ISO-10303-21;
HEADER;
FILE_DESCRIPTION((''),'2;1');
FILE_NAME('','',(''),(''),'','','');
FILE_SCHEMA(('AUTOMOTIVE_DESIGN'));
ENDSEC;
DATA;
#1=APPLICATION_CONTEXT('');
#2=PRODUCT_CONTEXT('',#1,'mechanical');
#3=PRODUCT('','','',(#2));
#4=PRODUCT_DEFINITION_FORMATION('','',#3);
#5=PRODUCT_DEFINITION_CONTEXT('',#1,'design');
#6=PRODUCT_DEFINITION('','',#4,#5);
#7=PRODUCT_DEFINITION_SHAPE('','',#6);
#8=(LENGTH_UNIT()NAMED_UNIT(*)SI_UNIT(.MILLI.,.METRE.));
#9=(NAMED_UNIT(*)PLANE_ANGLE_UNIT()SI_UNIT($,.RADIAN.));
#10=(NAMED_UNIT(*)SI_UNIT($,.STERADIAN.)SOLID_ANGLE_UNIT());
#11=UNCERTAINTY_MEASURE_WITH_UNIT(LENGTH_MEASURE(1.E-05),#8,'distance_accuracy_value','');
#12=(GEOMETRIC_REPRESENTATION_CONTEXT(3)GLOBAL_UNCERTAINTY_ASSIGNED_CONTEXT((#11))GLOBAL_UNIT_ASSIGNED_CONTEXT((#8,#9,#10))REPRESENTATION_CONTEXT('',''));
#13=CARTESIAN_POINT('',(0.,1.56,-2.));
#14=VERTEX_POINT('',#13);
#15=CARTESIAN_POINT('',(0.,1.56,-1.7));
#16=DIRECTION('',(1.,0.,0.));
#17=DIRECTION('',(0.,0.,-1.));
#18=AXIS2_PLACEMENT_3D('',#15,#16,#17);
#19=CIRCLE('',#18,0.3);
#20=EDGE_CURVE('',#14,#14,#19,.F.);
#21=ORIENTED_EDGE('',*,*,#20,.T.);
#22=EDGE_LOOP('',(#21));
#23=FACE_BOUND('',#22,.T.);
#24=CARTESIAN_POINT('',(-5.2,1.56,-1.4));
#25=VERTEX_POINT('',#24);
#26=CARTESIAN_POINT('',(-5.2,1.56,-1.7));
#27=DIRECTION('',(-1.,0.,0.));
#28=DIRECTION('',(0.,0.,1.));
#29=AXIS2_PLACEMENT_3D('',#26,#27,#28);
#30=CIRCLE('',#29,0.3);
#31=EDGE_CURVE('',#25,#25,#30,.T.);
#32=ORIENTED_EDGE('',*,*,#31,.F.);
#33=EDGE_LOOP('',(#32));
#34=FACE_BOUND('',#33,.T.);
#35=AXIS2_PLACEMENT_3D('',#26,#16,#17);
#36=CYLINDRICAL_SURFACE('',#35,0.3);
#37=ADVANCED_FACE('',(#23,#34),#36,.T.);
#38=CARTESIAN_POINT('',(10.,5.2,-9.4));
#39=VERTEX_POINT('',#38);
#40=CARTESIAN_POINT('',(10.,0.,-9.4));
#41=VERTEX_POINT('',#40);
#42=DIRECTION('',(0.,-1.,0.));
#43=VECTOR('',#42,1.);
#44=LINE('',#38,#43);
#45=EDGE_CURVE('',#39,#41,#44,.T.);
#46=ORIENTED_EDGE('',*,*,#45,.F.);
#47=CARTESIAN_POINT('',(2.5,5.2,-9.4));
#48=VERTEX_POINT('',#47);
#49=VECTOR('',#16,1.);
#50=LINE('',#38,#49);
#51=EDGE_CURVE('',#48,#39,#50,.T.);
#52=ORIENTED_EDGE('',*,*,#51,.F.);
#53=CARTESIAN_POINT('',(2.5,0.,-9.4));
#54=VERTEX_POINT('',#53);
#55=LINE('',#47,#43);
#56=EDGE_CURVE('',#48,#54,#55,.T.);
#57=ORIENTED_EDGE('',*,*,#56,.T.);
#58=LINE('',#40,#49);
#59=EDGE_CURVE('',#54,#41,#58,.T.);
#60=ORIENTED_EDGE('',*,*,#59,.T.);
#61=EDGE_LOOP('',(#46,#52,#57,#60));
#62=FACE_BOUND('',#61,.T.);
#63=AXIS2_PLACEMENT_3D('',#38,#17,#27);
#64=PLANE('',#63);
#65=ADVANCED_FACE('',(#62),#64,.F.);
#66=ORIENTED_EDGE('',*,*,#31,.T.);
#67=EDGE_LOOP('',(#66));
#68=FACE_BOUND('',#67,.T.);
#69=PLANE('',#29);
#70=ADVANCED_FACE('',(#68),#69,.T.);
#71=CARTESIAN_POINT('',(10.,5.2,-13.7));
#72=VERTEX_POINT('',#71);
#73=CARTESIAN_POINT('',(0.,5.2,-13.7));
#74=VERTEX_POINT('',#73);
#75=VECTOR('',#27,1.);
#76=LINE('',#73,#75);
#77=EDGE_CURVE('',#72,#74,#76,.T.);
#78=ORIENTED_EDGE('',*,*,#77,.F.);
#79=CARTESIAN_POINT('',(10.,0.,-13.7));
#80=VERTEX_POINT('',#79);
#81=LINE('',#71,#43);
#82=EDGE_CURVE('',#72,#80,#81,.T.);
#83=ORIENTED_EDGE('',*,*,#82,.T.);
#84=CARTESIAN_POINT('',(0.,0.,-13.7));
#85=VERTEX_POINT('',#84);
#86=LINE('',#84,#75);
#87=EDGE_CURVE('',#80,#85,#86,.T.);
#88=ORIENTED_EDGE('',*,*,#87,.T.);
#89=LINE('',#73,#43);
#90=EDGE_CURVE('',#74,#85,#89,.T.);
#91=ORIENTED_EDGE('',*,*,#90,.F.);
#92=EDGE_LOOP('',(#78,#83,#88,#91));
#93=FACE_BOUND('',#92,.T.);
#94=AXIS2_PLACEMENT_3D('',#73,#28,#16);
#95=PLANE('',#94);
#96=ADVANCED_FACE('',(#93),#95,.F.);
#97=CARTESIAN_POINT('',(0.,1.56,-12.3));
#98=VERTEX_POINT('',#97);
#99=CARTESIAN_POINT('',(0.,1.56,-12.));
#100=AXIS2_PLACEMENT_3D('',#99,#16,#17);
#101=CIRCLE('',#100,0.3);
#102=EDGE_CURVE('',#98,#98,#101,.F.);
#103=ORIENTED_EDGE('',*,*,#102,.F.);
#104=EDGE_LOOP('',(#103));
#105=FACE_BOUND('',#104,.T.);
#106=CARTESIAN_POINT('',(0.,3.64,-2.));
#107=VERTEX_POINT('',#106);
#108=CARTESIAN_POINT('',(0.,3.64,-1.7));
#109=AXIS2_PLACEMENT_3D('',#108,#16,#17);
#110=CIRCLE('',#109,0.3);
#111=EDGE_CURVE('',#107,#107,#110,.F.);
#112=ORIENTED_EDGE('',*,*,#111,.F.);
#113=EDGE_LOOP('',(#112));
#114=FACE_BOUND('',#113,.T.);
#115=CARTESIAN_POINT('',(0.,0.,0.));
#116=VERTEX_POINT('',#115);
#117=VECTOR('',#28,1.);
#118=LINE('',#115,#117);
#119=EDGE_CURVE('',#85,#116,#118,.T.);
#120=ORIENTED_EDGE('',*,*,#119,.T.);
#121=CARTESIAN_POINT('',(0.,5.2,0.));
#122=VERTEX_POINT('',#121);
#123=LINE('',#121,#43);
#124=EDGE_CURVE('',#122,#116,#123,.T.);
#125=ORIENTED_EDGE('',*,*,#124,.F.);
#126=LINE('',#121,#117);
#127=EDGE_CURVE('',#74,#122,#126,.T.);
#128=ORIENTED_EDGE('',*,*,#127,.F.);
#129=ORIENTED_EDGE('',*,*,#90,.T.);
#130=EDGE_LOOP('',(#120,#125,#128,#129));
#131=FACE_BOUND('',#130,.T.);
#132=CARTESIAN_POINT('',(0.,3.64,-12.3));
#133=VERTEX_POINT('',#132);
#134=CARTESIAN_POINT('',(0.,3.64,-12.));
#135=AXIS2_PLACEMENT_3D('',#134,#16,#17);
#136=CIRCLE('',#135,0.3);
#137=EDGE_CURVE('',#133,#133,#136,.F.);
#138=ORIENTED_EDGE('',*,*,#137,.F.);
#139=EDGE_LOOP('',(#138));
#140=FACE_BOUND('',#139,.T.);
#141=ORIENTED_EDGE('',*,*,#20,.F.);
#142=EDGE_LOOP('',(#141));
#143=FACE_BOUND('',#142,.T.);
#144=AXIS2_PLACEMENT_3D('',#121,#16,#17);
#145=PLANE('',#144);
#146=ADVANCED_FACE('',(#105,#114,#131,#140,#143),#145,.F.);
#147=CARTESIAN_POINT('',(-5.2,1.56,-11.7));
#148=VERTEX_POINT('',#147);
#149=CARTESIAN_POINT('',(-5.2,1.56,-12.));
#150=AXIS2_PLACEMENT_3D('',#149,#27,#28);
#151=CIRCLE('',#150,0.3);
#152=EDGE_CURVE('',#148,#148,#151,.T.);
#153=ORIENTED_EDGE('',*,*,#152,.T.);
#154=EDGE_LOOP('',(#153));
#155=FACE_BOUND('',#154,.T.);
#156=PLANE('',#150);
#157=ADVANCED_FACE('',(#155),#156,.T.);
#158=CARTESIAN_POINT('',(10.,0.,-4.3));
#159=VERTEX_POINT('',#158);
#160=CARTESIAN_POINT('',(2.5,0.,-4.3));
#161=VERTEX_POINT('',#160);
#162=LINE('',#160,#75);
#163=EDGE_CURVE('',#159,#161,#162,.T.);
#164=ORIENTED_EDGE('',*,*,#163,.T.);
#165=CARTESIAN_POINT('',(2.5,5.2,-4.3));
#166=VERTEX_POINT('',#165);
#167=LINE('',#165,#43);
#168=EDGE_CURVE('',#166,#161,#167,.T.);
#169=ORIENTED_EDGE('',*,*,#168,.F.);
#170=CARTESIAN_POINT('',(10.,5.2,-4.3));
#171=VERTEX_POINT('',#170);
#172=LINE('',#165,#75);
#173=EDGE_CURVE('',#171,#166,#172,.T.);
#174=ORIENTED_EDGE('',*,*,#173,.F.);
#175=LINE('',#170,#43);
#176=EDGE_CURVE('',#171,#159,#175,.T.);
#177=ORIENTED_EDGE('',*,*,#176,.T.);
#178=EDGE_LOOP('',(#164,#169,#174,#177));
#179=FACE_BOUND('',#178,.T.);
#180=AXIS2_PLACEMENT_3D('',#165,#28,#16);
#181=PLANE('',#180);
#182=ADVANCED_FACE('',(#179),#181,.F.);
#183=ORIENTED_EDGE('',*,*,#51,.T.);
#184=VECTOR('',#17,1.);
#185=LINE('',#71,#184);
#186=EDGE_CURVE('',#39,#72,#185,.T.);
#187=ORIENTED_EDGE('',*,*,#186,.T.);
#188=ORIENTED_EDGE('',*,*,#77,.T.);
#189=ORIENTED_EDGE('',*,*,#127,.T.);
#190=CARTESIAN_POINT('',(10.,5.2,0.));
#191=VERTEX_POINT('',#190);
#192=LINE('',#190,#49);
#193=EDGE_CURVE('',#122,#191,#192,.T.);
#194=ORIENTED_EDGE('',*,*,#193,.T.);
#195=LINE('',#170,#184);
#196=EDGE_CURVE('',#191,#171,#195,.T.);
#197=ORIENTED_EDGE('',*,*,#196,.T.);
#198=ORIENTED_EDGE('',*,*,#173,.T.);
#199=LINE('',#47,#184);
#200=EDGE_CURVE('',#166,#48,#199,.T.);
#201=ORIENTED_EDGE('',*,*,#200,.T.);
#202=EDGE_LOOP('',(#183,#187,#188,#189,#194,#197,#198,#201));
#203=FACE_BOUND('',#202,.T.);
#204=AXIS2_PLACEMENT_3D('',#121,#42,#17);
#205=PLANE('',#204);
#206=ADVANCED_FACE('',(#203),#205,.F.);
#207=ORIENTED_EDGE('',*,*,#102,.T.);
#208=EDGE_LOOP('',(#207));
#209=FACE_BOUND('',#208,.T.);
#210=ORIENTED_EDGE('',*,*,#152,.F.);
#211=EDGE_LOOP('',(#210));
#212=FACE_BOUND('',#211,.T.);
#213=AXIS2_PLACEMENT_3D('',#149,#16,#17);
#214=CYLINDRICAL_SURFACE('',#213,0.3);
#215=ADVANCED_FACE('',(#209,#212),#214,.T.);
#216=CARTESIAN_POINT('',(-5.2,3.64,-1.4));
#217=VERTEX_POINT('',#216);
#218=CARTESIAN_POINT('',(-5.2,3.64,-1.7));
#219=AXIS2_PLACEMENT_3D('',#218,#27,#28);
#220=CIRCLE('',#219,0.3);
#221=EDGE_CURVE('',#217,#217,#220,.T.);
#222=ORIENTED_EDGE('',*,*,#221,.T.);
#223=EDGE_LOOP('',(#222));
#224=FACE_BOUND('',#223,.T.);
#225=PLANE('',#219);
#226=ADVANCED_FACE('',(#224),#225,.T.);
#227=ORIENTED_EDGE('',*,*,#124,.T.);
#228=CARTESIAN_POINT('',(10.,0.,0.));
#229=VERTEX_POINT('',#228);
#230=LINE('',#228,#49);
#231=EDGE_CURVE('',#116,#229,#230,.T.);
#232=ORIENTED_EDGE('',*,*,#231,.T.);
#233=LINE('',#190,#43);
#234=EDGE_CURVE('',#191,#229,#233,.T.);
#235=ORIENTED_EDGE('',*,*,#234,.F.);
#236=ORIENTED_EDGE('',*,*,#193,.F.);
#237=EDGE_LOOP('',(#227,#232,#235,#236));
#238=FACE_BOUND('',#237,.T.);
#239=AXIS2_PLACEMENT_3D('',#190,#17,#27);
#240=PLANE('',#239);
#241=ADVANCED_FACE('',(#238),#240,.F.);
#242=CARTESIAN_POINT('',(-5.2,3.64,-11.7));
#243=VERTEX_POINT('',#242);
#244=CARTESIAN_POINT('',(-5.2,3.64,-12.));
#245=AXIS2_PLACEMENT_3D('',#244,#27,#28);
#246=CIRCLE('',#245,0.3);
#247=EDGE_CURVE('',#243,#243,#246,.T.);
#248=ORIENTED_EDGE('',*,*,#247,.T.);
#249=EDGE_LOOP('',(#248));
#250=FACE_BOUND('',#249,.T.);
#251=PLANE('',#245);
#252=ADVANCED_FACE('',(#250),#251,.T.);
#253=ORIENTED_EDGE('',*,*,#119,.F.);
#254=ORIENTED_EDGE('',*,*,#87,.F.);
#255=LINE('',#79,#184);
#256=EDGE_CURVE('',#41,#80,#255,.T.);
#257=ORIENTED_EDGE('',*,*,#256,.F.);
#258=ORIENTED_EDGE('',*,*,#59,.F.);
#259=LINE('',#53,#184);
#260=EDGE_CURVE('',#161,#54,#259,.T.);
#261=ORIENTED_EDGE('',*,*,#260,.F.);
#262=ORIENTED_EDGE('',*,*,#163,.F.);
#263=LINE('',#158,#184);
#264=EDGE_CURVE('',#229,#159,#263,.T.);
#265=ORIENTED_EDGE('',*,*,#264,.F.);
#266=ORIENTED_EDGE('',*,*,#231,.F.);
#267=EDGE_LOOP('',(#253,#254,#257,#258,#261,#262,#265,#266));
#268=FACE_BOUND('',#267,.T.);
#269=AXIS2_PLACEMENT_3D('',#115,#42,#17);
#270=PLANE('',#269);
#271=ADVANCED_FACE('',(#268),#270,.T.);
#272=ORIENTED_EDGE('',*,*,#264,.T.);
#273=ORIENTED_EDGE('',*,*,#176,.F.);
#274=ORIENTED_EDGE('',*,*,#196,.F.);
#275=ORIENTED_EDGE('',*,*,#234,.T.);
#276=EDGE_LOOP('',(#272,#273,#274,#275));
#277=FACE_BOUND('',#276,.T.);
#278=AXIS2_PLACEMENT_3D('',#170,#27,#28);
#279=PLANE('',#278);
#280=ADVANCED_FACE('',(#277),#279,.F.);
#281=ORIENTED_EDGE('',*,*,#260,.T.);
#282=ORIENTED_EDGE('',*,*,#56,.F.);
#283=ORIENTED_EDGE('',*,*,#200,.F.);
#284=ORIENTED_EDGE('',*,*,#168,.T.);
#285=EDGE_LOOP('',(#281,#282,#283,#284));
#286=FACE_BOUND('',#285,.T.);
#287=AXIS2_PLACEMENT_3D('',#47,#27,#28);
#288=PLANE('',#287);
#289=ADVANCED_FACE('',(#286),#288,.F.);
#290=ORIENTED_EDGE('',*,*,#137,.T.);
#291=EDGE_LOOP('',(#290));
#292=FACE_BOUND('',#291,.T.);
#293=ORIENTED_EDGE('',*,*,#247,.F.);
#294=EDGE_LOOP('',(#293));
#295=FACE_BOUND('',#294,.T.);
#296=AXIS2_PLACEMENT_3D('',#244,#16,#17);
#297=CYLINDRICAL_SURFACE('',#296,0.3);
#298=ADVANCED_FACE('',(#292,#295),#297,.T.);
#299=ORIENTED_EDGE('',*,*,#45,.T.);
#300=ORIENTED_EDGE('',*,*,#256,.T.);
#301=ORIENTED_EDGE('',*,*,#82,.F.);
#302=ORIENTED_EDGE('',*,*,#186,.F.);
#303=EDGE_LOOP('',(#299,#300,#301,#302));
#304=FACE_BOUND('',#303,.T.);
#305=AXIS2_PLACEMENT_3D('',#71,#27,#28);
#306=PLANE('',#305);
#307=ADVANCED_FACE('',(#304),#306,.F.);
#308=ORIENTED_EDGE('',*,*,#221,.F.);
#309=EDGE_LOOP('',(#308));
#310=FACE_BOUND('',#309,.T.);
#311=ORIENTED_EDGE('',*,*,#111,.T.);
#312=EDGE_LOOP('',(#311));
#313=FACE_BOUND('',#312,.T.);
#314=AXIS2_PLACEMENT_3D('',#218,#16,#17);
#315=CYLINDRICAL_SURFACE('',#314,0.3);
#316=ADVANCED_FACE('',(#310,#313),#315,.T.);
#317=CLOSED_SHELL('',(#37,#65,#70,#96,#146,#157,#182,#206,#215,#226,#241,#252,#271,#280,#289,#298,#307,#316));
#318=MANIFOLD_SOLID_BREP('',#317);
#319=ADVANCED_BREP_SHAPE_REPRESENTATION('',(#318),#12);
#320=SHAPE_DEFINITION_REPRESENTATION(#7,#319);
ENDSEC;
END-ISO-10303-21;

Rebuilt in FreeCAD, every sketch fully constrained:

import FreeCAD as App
import Part
import Sketcher
from FreeCAD import Vector
Q = App.Units.Quantity

doc = App.newDocument("Part")
body = doc.addObject("PartDesign::Body", "Body")

sketch1 = body.newObject("Sketcher::SketchObject", "Sketch")
sketch1.AttachmentSupport = (doc.getObject("XZ_Plane"), [""])
sketch1.MapMode = "FlatFace"
sketch1.addGeometry(Part.LineSegment(Vector(0, -13.7, 0), Vector(0, 0, 0)), False)
sketch1.addGeometry(Part.LineSegment(Vector(0, 0, 0), Vector(10, 0, 0)), False)
sketch1.addGeometry(Part.LineSegment(Vector(10, 0, 0), Vector(10, -4.3, 0)), False)
sketch1.addGeometry(Part.LineSegment(Vector(10, -4.3, 0), Vector(2.5, -4.3, 0)), False)
sketch1.addGeometry(Part.LineSegment(Vector(2.5, -4.3, 0), Vector(2.5, -9.4, 0)), False)
sketch1.addGeometry(Part.LineSegment(Vector(2.5, -9.4, 0), Vector(10, -9.4, 0)), False)
sketch1.addGeometry(Part.LineSegment(Vector(10, -9.4, 0), Vector(10, -13.7, 0)), False)
sketch1.addGeometry(Part.LineSegment(Vector(10, -13.7, 0), Vector(0, -13.7, 0)), False)
sketch1.addConstraint(Sketcher.Constraint("Coincident", 0, 2, 1, 1))
sketch1.addConstraint(Sketcher.Constraint("Coincident", 1, 2, 2, 1))
sketch1.addConstraint(Sketcher.Constraint("Coincident", 2, 2, 3, 1))
sketch1.addConstraint(Sketcher.Constraint("Coincident", 3, 2, 4, 1))
sketch1.addConstraint(Sketcher.Constraint("Coincident", 4, 2, 5, 1))
sketch1.addConstraint(Sketcher.Constraint("Coincident", 5, 2, 6, 1))
sketch1.addConstraint(Sketcher.Constraint("Coincident", 6, 2, 7, 1))
sketch1.addConstraint(Sketcher.Constraint("Coincident", 7, 2, 0, 1))
sketch1.addConstraint(Sketcher.Constraint("Vertical", 0))
sketch1.addConstraint(Sketcher.Constraint("Horizontal", 1))
sketch1.addConstraint(Sketcher.Constraint("Vertical", 2))
sketch1.addConstraint(Sketcher.Constraint("Horizontal", 3))
sketch1.addConstraint(Sketcher.Constraint("Vertical", 4))
sketch1.addConstraint(Sketcher.Constraint("Horizontal", 5))
sketch1.addConstraint(Sketcher.Constraint("Vertical", 6))
sketch1.addConstraint(Sketcher.Constraint("Horizontal", 7))
sketch1.addConstraint(Sketcher.Constraint("Coincident", 0, 2, -1, 1))
sketch1.addConstraint(Sketcher.Constraint("Vertical", 2, 2, 5, 2))
sketch1.addConstraint(Sketcher.Constraint("Equal", 2, 6))
sketch1.addConstraint(Sketcher.Constraint("DistanceX", 1, 1, 1, 2, Q("10 mm")))
sketch1.addConstraint(Sketcher.Constraint("DistanceX", 3, 2, 3, 1, Q("7.5 mm")))
sketch1.addConstraint(Sketcher.Constraint("DistanceY", 0, 1, 0, 2, Q("13.7 mm")))
sketch1.addConstraint(Sketcher.Constraint("DistanceY", 2, 2, 2, 1, Q("4.3 mm")))
pad1 = body.newObject("PartDesign::Pad", "Pad")
pad1.Profile = sketch1
pad1.Length = 5.2
pad1.Reversed = True

sketch2 = body.newObject("Sketcher::SketchObject", "Sketch001")
sketch2.AttachmentSupport = (doc.getObject("YZ_Plane"), [""])
sketch2.MapMode = "FlatFace"
sketch2.addGeometry(Part.Circle(Vector(3.64, -12, 0), Vector(0, 0, 1), 0.3), False)
sketch2.addGeometry(Part.Circle(Vector(3.64, -1.7, 0), Vector(0, 0, 1), 0.3), False)
sketch2.addGeometry(Part.Circle(Vector(1.56, -1.7, 0), Vector(0, 0, 1), 0.3), False)
sketch2.addGeometry(Part.Circle(Vector(1.56, -12, 0), Vector(0, 0, 1), 0.3), False)
sketch2.addConstraint(Sketcher.Constraint("Equal", 0, 1))
sketch2.addConstraint(Sketcher.Constraint("Equal", 1, 2))
sketch2.addConstraint(Sketcher.Constraint("Equal", 2, 3))
sketch2.addConstraint(Sketcher.Constraint("Horizontal", 1, 3, 2, 3))
sketch2.addConstraint(Sketcher.Constraint("Horizontal", 0, 3, 3, 3))
sketch2.addConstraint(Sketcher.Constraint("Vertical", 0, 3, 1, 3))
sketch2.addConstraint(Sketcher.Constraint("Vertical", 2, 3, 3, 3))
sketch2.addConstraint(Sketcher.Constraint("Diameter", 0, Q("0.6 mm")))
sketch2.addConstraint(Sketcher.Constraint("DistanceY", 0, 3, -1, 1, Q("12 mm")))
sketch2.addConstraint(Sketcher.Constraint("DistanceY", 1, 3, -1, 1, Q("1.7 mm")))
sketch2.addConstraint(Sketcher.Constraint("DistanceX", -1, 1, 0, 3, Q("3.64 mm")))
sketch2.addConstraint(Sketcher.Constraint("DistanceX", -1, 1, 2, 3, Q("1.56 mm")))
pad2 = body.newObject("PartDesign::Pad", "Pad001")
pad2.Profile = sketch2
pad2.Length = 5.2
pad2.Reversed = True

doc.recompute()
